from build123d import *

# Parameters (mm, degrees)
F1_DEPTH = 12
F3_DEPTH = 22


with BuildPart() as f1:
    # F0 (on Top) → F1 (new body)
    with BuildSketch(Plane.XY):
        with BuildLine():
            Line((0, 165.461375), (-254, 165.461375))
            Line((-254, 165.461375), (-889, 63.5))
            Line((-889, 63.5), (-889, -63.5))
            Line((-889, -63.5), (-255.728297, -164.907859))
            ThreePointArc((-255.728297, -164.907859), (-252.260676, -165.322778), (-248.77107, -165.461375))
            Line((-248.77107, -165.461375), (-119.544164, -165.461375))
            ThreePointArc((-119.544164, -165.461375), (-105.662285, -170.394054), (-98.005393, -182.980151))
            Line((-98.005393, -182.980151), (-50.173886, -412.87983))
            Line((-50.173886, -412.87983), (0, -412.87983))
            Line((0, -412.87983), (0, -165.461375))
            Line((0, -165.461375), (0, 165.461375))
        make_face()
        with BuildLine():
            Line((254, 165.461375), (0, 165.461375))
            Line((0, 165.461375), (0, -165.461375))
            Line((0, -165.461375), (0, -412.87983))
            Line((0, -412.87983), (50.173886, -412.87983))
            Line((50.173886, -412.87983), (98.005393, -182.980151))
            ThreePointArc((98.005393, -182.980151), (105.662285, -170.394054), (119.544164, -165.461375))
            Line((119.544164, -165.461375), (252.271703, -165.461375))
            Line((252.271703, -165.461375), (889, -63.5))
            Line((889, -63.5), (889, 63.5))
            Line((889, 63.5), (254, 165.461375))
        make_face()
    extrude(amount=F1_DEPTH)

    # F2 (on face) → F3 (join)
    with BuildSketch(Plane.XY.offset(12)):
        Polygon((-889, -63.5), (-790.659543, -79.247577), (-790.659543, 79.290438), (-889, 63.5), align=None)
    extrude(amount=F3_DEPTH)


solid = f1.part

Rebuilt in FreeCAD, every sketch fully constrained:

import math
import FreeCAD as App
import Part
import Sketcher

V = App.Vector


def add_polygon(sketch, points):
    """Adds a closed chain of lines whose ends are joined by coincident constraints."""
    first, n = sketch.GeometryCount, len(points)
    for a, b in zip(points, points[1:] + points[:1]):
        sketch.addGeometry(Part.LineSegment(App.Vector(*a, 0), App.Vector(*b, 0)), False)
    for i in range(n):
        sketch.addConstraint(Sketcher.Constraint("Coincident", first + i, 2, first + (i + 1) % n, 1))

doc = App.newDocument("Part")
params = doc.addObject("Spreadsheet::Sheet", "Params")
for row, (alias, value) in enumerate([
    ("sketch1_radius", "22 mm"),
    ("sketch1_width", "508 mm"),
    ("sketch1_height", "127 mm"),
    ("pad1_length", "12 mm"),
    ("sketch2_height", "127 mm"),
    ("pad2_length", "22 mm"),
], start=1):
    params.set(f"A{row}", alias)
    params.set(f"B{row}", "=" + value)
    params.setAlias(f"B{row}", alias)

body = doc.addObject("PartDesign::Body", "Body")

sketch1 = body.newObject("Sketcher::SketchObject", "Sketch")
sketch1.AttachmentSupport = (doc.getObject("XY_Plane"), [""])
sketch1.MapMode = "FlatFace"
sketch1.addGeometry([
    Part.LineSegment(V(-254, 165, 0), V(-889, 64, 0)),
    Part.LineSegment(V(-889, 64, 0), V(-889, -64, 0)),
    Part.LineSegment(V(-889, -64, 0), V(-256, -165, 0)),
    Part.ArcOfCircle(Part.Circle(V(-249, -121, 0), V(0, 0, 1), 44), math.radians(-99.1), math.radians(-90)),
    Part.LineSegment(V(-249, -165, 0), V(-120, -165, 0)),
    Part.ArcOfCircle(Part.Circle(V(-120, -187, 0), V(0, 0, 1), 22), math.radians(12), math.radians(90)),
    Part.LineSegment(V(-98, -183, 0), V(-50, -413, 0)),
    Part.LineSegment(V(-50, -413, 0), V(50, -413, 0)),
    Part.LineSegment(V(50, -413, 0), V(98, -183, 0)),
    Part.ArcOfCircle(Part.Circle(V(120, -187, 0), V(0, 0, 1), 22), math.radians(90), math.radians(168)),
    Part.LineSegment(V(120, -165, 0), V(252, -165, 0)),
    Part.LineSegment(V(252, -165, 0), V(889, -64, 0)),
    Part.LineSegment(V(889, -64, 0), V(889, 64, 0)),
    Part.LineSegment(V(889, 64, 0), V(254, 165, 0)),
    Part.LineSegment(V(254, 165, 0), V(-254, 165, 0)),
], False)
sketch1.addConstraint([
    Sketcher.Constraint("Coincident", 0, 2, 1, 1),
    Sketcher.Constraint("Coincident", 1, 2, 2, 1),
    Sketcher.Constraint("Tangent", 2, 2, 3, 1),
    Sketcher.Constraint("Tangent", 3, 2, 4, 1),
    Sketcher.Constraint("Tangent", 4, 2, 5, 2),
    Sketcher.Constraint("Tangent", 5, 1, 6, 1),
    Sketcher.Constraint("Coincident", 6, 2, 7, 1),
    Sketcher.Constraint("Coincident", 7, 2, 8, 1),
    Sketcher.Constraint("Tangent", 8, 2, 9, 2),
    Sketcher.Constraint("Tangent", 9, 1, 10, 1),
    Sketcher.Constraint("Coincident", 10, 2, 11, 1),
    Sketcher.Constraint("Coincident", 11, 2, 12, 1),
    Sketcher.Constraint("Coincident", 12, 2, 13, 1),
    Sketcher.Constraint("Coincident", 13, 2, 14, 1),
    Sketcher.Constraint("Coincident", 14, 2, 0, 1),
    Sketcher.Constraint("Vertical", 1),
    Sketcher.Constraint("Horizontal", 4),
    Sketcher.Constraint("Horizontal", 7),
    Sketcher.Constraint("Horizontal", 10),
    Sketcher.Constraint("Vertical", 12),
    Sketcher.Constraint("Horizontal", 14),
    Sketcher.Constraint("Equal", 5, 9),
    Sketcher.Constraint("Symmetric", 0, 2, 11, 2, -1, 1),
    Sketcher.Constraint("Symmetric", 5, 3, 9, 3, -2),
    Sketcher.Constraint("Horizontal", 5, 1, 8, 2),
    Sketcher.Constraint("Horizontal", 1, 2, 11, 2),
    Sketcher.Constraint("Horizontal", 0, 2, 12, 2),
    Sketcher.Constraint("Equal", 0, 13),
    Sketcher.Constraint("Radius", 5, 22.0),
    Sketcher.Constraint("DistanceX", 14, 2, 14, 1, 508.0),
    Sketcher.Constraint("DistanceY", 1, 2, 1, 1, 127.0),
    Sketcher.Constraint("DistanceX", 0, 2, -1, 1, 889.0),
    Sketcher.Constraint("Radius", 3, 43.99988),
    Sketcher.Constraint("DistanceX", 10, 1, 10, 2, 132.727539),
    Sketcher.Constraint("Distance", 0, 643.133829),
    Sketcher.Constraint("DistanceX", 4, 1, 4, 2, 129.226906),
    Sketcher.Constraint("DistanceX", 7, 1, 7, 2, 100.347772),
    Sketcher.Constraint("DistanceX", 3, 3, -1, 1, 248.771078),
    Sketcher.Constraint("DistanceY", 2, 2, -1, 1, 164.907859),
    Sketcher.Constraint("DistanceY", 6, 2, -1, 1, 412.87983),
])
sketch1.setExpression("Constraints[28]", "Params.sketch1_radius")
sketch1.setExpression("Constraints[29]", "Params.sketch1_width")
sketch1.setExpression("Constraints[30]", "Params.sketch1_height")
pad1 = body.newObject("PartDesign::Pad", "Pad")
pad1.Profile = sketch1
pad1.setExpression("Length", "Params.pad1_length")

sketch2 = body.newObject("Sketcher::SketchObject", "Sketch001")
sketch2.AttachmentSupport = (doc.getObject("XY_Plane"), [""])
sketch2.MapMode = "FlatFace"
sketch2.AttachmentOffset = App.Placement(V(0, 0, 12), App.Rotation())
add_polygon(sketch2, [(-889, -64), (-791, -79), (-791, 79), (-889, 64)])
sketch2.addConstraint([
    Sketcher.Constraint("Vertical", 1),
    Sketcher.Constraint("Vertical", 3),
    Sketcher.Constraint("DistanceY", 3, 2, 3, 1, 127.0),
    Sketcher.Constraint("DistanceX", 2, 2, -1, 1, 889.0),
    Sketcher.Constraint("DistanceY", -1, 1, 2, 2, 63.5),
    Sketcher.Constraint("Distance", 0, 99.593331),
    Sketcher.Constraint("DistanceY", 1, 1, 1, 2, 158.538015),
    Sketcher.Constraint("DistanceY", 3, 2, 1, 2, 142.790438),
])
sketch2.setExpression("Constraints[6]", "Params.sketch2_height")
pad2 = body.newObject("PartDesign::Pad", "Pad001")
pad2.Profile = sketch2
pad2.setExpression("Length", "Params.pad2_length")

doc.recompute()
